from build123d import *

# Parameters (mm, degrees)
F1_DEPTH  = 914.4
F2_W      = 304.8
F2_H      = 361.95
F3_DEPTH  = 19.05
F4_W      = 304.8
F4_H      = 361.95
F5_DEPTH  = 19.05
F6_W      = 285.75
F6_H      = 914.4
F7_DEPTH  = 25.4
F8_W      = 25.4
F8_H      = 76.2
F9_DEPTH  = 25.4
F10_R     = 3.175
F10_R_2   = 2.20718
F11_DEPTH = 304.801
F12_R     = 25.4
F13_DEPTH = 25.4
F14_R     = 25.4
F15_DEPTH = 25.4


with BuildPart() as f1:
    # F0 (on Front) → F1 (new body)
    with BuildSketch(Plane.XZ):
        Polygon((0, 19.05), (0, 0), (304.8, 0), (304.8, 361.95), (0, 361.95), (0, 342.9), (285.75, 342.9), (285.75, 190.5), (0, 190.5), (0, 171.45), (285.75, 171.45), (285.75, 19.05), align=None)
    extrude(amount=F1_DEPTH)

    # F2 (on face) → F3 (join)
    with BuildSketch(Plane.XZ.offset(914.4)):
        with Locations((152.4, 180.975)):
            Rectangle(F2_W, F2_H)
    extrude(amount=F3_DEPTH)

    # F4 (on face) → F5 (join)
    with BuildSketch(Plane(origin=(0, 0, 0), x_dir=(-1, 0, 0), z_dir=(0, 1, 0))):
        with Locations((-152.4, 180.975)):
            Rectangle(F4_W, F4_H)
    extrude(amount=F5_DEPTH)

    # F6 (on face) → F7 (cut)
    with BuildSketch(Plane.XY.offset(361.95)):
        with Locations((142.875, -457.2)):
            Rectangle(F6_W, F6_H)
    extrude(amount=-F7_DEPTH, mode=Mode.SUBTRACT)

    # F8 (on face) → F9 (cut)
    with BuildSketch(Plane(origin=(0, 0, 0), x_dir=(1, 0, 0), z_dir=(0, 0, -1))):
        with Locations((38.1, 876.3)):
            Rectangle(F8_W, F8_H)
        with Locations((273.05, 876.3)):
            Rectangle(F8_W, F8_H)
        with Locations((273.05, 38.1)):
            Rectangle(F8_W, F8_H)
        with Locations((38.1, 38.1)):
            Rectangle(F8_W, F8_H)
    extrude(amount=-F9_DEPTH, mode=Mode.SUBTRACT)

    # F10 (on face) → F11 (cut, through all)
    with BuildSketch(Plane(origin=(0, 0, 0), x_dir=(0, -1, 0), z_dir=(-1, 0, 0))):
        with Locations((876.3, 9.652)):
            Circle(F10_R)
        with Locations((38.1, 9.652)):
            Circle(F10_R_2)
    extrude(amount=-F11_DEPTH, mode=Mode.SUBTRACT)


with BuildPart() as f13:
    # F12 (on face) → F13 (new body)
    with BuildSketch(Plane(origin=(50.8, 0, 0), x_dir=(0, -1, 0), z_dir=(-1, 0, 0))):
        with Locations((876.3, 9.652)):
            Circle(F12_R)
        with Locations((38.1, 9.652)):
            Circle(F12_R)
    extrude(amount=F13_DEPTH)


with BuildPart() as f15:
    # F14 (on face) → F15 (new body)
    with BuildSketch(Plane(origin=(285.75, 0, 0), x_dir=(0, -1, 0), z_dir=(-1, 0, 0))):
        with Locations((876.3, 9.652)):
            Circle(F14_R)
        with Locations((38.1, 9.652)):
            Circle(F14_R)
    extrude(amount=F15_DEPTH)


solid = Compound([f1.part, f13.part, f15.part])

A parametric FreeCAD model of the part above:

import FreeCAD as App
import Part
import Sketcher
from FreeCAD import Vector
Q = App.Units.Quantity

doc = App.newDocument("Part")
body = doc.addObject("PartDesign::Body", "Body")

sketch1 = body.newObject("Sketcher::SketchObject", "Sketch")
sketch1.AttachmentSupport = (doc.getObject("XZ_Plane"), [""])
sketch1.MapMode = "FlatFace"
sketch1.addGeometry(Part.LineSegment(Vector(0, 19, 0), Vector(0, 0, 0)), False)
sketch1.addGeometry(Part.LineSegment(Vector(0, 0, 0), Vector(305, 0, 0)), False)
sketch1.addGeometry(Part.LineSegment(Vector(305, 0, 0), Vector(305, 362, 0)), False)
sketch1.addGeometry(Part.LineSegment(Vector(305, 362, 0), Vector(0, 362, 0)), False)
sketch1.addGeometry(Part.LineSegment(Vector(0, 362, 0), Vector(0, 343, 0)), False)
sketch1.addGeometry(Part.LineSegment(Vector(0, 343, 0), Vector(286, 343, 0)), False)
sketch1.addGeometry(Part.LineSegment(Vector(286, 343, 0), Vector(286, 190, 0)), False)
sketch1.addGeometry(Part.LineSegment(Vector(286, 190, 0), Vector(0, 190, 0)), False)
sketch1.addGeometry(Part.LineSegment(Vector(0, 190, 0), Vector(0, 171, 0)), False)
sketch1.addGeometry(Part.LineSegment(Vector(0, 171, 0), Vector(286, 171, 0)), False)
sketch1.addGeometry(Part.LineSegment(Vector(286, 171, 0), Vector(286, 19, 0)), False)
sketch1.addGeometry(Part.LineSegment(Vector(286, 19, 0), Vector(0, 19, 0)), False)
sketch1.addConstraint(Sketcher.Constraint("Coincident", 0, 2, 1, 1))
sketch1.addConstraint(Sketcher.Constraint("Coincident", 1, 2, 2, 1))
sketch1.addConstraint(Sketcher.Constraint("Coincident", 2, 2, 3, 1))
sketch1.addConstraint(Sketcher.Constraint("Coincident", 3, 2, 4, 1))
sketch1.addConstraint(Sketcher.Constraint("Coincident", 4, 2, 5, 1))
sketch1.addConstraint(Sketcher.Constraint("Coincident", 5, 2, 6, 1))
sketch1.addConstraint(Sketcher.Constraint("Coincident", 6, 2, 7, 1))
sketch1.addConstraint(Sketcher.Constraint("Coincident", 7, 2, 8, 1))
sketch1.addConstraint(Sketcher.Constraint("Coincident", 8, 2, 9, 1))
sketch1.addConstraint(Sketcher.Constraint("Coincident", 9, 2, 10, 1))
sketch1.addConstraint(Sketcher.Constraint("Coincident", 10, 2, 11, 1))
sketch1.addConstraint(Sketcher.Constraint("Coincident", 11, 2, 0, 1))
sketch1.addConstraint(Sketcher.Constraint("Vertical", 0))
sketch1.addConstraint(Sketcher.Constraint("Horizontal", 1))
sketch1.addConstraint(Sketcher.Constraint("Vertical", 2))
sketch1.addConstraint(Sketcher.Constraint("Horizontal", 3))
sketch1.addConstraint(Sketcher.Constraint("Vertical", 4))
sketch1.addConstraint(Sketcher.Constraint("Horizontal", 5))
sketch1.addConstraint(Sketcher.Constraint("Vertical", 6))
sketch1.addConstraint(Sketcher.Constraint("Horizontal", 7))
sketch1.addConstraint(Sketcher.Constraint("Vertical", 8))
sketch1.addConstraint(Sketcher.Constraint("Horizontal", 9))
sketch1.addConstraint(Sketcher.Constraint("Vertical", 10))
sketch1.addConstraint(Sketcher.Constraint("Horizontal", 11))
sketch1.addConstraint(Sketcher.Constraint("Coincident", 0, 2, -1, 1))
sketch1.addConstraint(Sketcher.Constraint("PointOnObject", 3, 2, -2))
sketch1.addConstraint(Sketcher.Constraint("PointOnObject", 7, 2, -2))
sketch1.addConstraint(Sketcher.Constraint("Vertical", 6, 2, 9, 2))
sketch1.addConstraint(Sketcher.Constraint("Equal", 0, 4))
sketch1.addConstraint(Sketcher.Constraint("Equal", 4, 8))
sketch1.addConstraint(Sketcher.Constraint("Equal", 6, 10))
sketch1.addConstraint(Sketcher.Constraint("DistanceX", 1, 1, 1, 2, Q("12 in")))
sketch1.addConstraint(Sketcher.Constraint("DistanceY", 6, 2, 6, 1, Q("6 in")))
sketch1.addConstraint(Sketcher.Constraint("DistanceX", 5, 1, 5, 2, Q("11.25 in")))
sketch1.addConstraint(Sketcher.Constraint("DistanceY", 0, 2, 0, 1, Q("0.75 in")))
pad1 = body.newObject("PartDesign::Pad", "Pad")
pad1.Profile = sketch1
pad1.Length = Q("36 in")

sketch2 = body.newObject("Sketcher::SketchObject", "Sketch001")
sketch2.AttachmentSupport = (doc.getObject("XZ_Plane"), [""])
sketch2.MapMode = "FlatFace"
sketch2.AttachmentOffset = App.Placement(Vector(0, 0, 36 * 25.4), App.Rotation())
sketch2.addGeometry(Part.LineSegment(Vector(0, 362, 0), Vector(0, 0, 0)), False)
sketch2.addGeometry(Part.LineSegment(Vector(0, 0, 0), Vector(305, 0, 0)), False)
sketch2.addGeometry(Part.LineSegment(Vector(305, 0, 0), Vector(305, 362, 0)), False)
sketch2.addGeometry(Part.LineSegment(Vector(305, 362, 0), Vector(0, 362, 0)), False)
sketch2.addConstraint(Sketcher.Constraint("Coincident", 0, 2, 1, 1))
sketch2.addConstraint(Sketcher.Constraint("Coincident", 1, 2, 2, 1))
sketch2.addConstraint(Sketcher.Constraint("Coincident", 2, 2, 3, 1))
sketch2.addConstraint(Sketcher.Constraint("Coincident", 3, 2, 0, 1))
sketch2.addConstraint(Sketcher.Constraint("Vertical", 0))
sketch2.addConstraint(Sketcher.Constraint("Horizontal", 1))
sketch2.addConstraint(Sketcher.Constraint("Vertical", 2))
sketch2.addConstraint(Sketcher.Constraint("Horizontal", 3))
sketch2.addConstraint(Sketcher.Constraint("Coincident", 0, 2, -1, 1))
sketch2.addConstraint(Sketcher.Constraint("DistanceX", 1, 1, 1, 2, Q("12 in")))
sketch2.addConstraint(Sketcher.Constraint("DistanceY", 0, 2, 0, 1, Q("14.25 in")))
pad2 = body.newObject("PartDesign::Pad", "Pad001")
pad2.Profile = sketch2
pad2.Length = Q("0.75 in")

sketch3 = body.newObject("Sketcher::SketchObject", "Sketch002")
sketch3.AttachmentSupport = (doc.getObject("XZ_Plane"), [""])
sketch3.MapMode = "FlatFace"
sketch3.addGeometry(Part.LineSegment(Vector(305, 362, 0), Vector(305, 0, 0)), False)
sketch3.addGeometry(Part.LineSegment(Vector(305, 0, 0), Vector(0, 0, 0)), False)
sketch3.addGeometry(Part.LineSegment(Vector(0, 0, 0), Vector(0, 362, 0)), False)
sketch3.addGeometry(Part.LineSegment(Vector(0, 362, 0), Vector(305, 362, 0)), False)
sketch3.addConstraint(Sketcher.Constraint("Coincident", 0, 2, 1, 1))
sketch3.addConstraint(Sketcher.Constraint("Coincident", 1, 2, 2, 1))
sketch3.addConstraint(Sketcher.Constraint("Coincident", 2, 2, 3, 1))
sketch3.addConstraint(Sketcher.Constraint("Coincident", 3, 2, 0, 1))
sketch3.addConstraint(Sketcher.Constraint("Vertical", 0))
sketch3.addConstraint(Sketcher.Constraint("Horizontal", 1))
sketch3.addConstraint(Sketcher.Constraint("Vertical", 2))
sketch3.addConstraint(Sketcher.Constraint("Horizontal", 3))
sketch3.addConstraint(Sketcher.Constraint("Coincident", 1, 2, -1, 1))
sketch3.addConstraint(Sketcher.Constraint("DistanceX", 1, 2, 1, 1, Q("12 in")))
sketch3.addConstraint(Sketcher.Constraint("DistanceY", 0, 2, 0, 1, Q("14.25 in")))
pad3 = body.newObject("PartDesign::Pad", "Pad002")
pad3.Profile = sketch3
pad3.Length = Q("0.75 in")
pad3.Reversed = True

sketch4 = body.newObject("Sketcher::SketchObject", "Sketch003")
sketch4.AttachmentSupport = (doc.getObject("XY_Plane"), [""])
sketch4.MapMode = "FlatFace"
sketch4.AttachmentOffset = App.Placement(Vector(0, 0, 14.25 * 25.4), App.Rotation())
sketch4.addGeometry(Part.LineSegment(Vector(0, 0, 0), Vector(0, -914, 0)), False)
sketch4.addGeometry(Part.LineSegment(Vector(0, -914, 0), Vector(286, -914, 0)), False)
sketch4.addGeometry(Part.LineSegment(Vector(286, -914, 0), Vector(286, 0, 0)), False)
sketch4.addGeometry(Part.LineSegment(Vector(286, 0, 0), Vector(0, 0, 0)), False)
sketch4.addConstraint(Sketcher.Constraint("Coincident", 0, 2, 1, 1))
sketch4.addConstraint(Sketcher.Constraint("Coincident", 1, 2, 2, 1))
sketch4.addConstraint(Sketcher.Constraint("Coincident", 2, 2, 3, 1))
sketch4.addConstraint(Sketcher.Constraint("Coincident", 3, 2, 0, 1))
sketch4.addConstraint(Sketcher.Constraint("Vertical", 0))
sketch4.addConstraint(Sketcher.Constraint("Horizontal", 1))
sketch4.addConstraint(Sketcher.Constraint("Vertical", 2))
sketch4.addConstraint(Sketcher.Constraint("Horizontal", 3))
sketch4.addConstraint(Sketcher.Constraint("Coincident", 3, 2, -1, 1))
sketch4.addConstraint(Sketcher.Constraint("DistanceY", 0, 2, 0, 1, Q("36 in")))
sketch4.addConstraint(Sketcher.Constraint("DistanceX", 1, 1, 1, 2, Q("11.25 in")))
pocket1 = body.newObject("PartDesign::Pocket", "Pocket")
pocket1.Profile = sketch4
pocket1.Length = Q("1 in")

sketch5 = body.newObject("Sketcher::SketchObject", "Sketch004")
sketch5.AttachmentSupport = (doc.getObject("XY_Plane"), [""])
sketch5.MapMode = "FlatFace"
sketch5.addGeometry(Part.LineSegment(Vector(25, -914, 0), Vector(25, -838, 0)), False)
sketch5.addGeometry(Part.LineSegment(Vector(25, -838, 0), Vector(51, -838, 0)), False)
sketch5.addGeometry(Part.LineSegment(Vector(51, -838, 0), Vector(51, -914, 0)), False)
sketch5.addGeometry(Part.LineSegment(Vector(51, -914, 0), Vector(25, -914, 0)), False)
sketch5.addGeometry(Part.LineSegment(Vector(260, -914, 0), Vector(260, -838, 0)), False)
sketch5.addGeometry(Part.LineSegment(Vector(260, -838, 0), Vector(286, -838, 0)), False)
sketch5.addGeometry(Part.LineSegment(Vector(286, -838, 0), Vector(286, -914, 0)), False)
sketch5.addGeometry(Part.LineSegment(Vector(286, -914, 0), Vector(260, -914, 0)), False)
sketch5.addGeometry(Part.LineSegment(Vector(260, -76, 0), Vector(260, 0, 0)), False)
sketch5.addGeometry(Part.LineSegment(Vector(260, 0, 0), Vector(286, 0, 0)), False)
sketch5.addGeometry(Part.LineSegment(Vector(286, 0, 0), Vector(286, -76, 0)), False)
sketch5.addGeometry(Part.LineSegment(Vector(286, -76, 0), Vector(260, -76, 0)), False)
sketch5.addGeometry(Part.LineSegment(Vector(25, -76, 0), Vector(25, 0, 0)), False)
sketch5.addGeometry(Part.LineSegment(Vector(25, 0, 0), Vector(51, 0, 0)), False)
sketch5.addGeometry(Part.LineSegment(Vector(51, 0, 0), Vector(51, -76, 0)), False)
sketch5.addGeometry(Part.LineSegment(Vector(51, -76, 0), Vector(25, -76, 0)), False)
sketch5.addConstraint(Sketcher.Constraint("Coincident", 0, 2, 1, 1))
sketch5.addConstraint(Sketcher.Constraint("Coincident", 1, 2, 2, 1))
sketch5.addConstraint(Sketcher.Constraint("Coincident", 2, 2, 3, 1))
sketch5.addConstraint(Sketcher.Constraint("Coincident", 3, 2, 0, 1))
sketch5.addConstraint(Sketcher.Constraint("Coincident", 4, 2, 5, 1))
sketch5.addConstraint(Sketcher.Constraint("Coincident", 5, 2, 6, 1))
sketch5.addConstraint(Sketcher.Constraint("Coincident", 6, 2, 7, 1))
sketch5.addConstraint(Sketcher.Constraint("Coincident", 7, 2, 4, 1))
sketch5.addConstraint(Sketcher.Constraint("Coincident", 8, 2, 9, 1))
sketch5.addConstraint(Sketcher.Constraint("Coincident", 9, 2, 10, 1))
sketch5.addConstraint(Sketcher.Constraint("Coincident", 10, 2, 11, 1))
sketch5.addConstraint(Sketcher.Constraint("Coincident", 11, 2, 8, 1))
sketch5.addConstraint(Sketcher.Constraint("Coincident", 12, 2, 13, 1))
sketch5.addConstraint(Sketcher.Constraint("Coincident", 13, 2, 14, 1))
sketch5.addConstraint(Sketcher.Constraint("Coincident", 14, 2, 15, 1))
sketch5.addConstraint(Sketcher.Constraint("Coincident", 15, 2, 12, 1))
sketch5.addConstraint(Sketcher.Constraint("Vertical", 0))
sketch5.addConstraint(Sketcher.Constraint("Horizontal", 1))
sketch5.addConstraint(Sketcher.Constraint("Vertical", 2))
sketch5.addConstraint(Sketcher.Constraint("Horizontal", 3))
sketch5.addConstraint(Sketcher.Constraint("Vertical", 4))
sketch5.addConstraint(Sketcher.Constraint("Horizontal", 5))
sketch5.addConstraint(Sketcher.Constraint("Vertical", 6))
sketch5.addConstraint(Sketcher.Constraint("Horizontal", 7))
sketch5.addConstraint(Sketcher.Constraint("Vertical", 8))
sketch5.addConstraint(Sketcher.Constraint("Horizontal", 9))
sketch5.addConstraint(Sketcher.Constraint("Vertical", 10))
sketch5.addConstraint(Sketcher.Constraint("Horizontal", 11))
sketch5.addConstraint(Sketcher.Constraint("Vertical", 12))
sketch5.addConstraint(Sketcher.Constraint("Horizontal", 13))
sketch5.addConstraint(Sketcher.Constraint("Vertical", 14))
sketch5.addConstraint(Sketcher.Constraint("Horizontal", 15))
sketch5.addConstraint(Sketcher.Constraint("PointOnObject", 8, 2, -1))
sketch5.addConstraint(Sketcher.Constraint("PointOnObject", 12, 2, -1))
sketch5.addConstraint(Sketcher.Constraint("Horizontal", 1, 2, 4, 2))
sketch5.addConstraint(Sketcher.Constraint("Horizontal", 3, 2, 6, 2))
sketch5.addConstraint(Sketcher.Constraint("Horizontal", 11, 2, 14, 2))
sketch5.addConstraint(Sketcher.Constraint("Vertical", 7, 2, 8, 2))
sketch5.addConstraint(Sketcher.Constraint("Vertical", 6, 2, 9, 2))
sketch5.addConstraint(Sketcher.Constraint("Vertical", 3, 2, 12, 2))
sketch5.addConstraint(Sketcher.Constraint("Vertical", 2, 2, 13, 2))
sketch5.addConstraint(Sketcher.Constraint("Equal", 3, 5))
sketch5.addConstraint(Sketcher.Constraint("Equal", 6, 8))
sketch5.addConstraint(Sketcher.Constraint("DistanceX", 1, 1, 1, 2, Q("1 in")))
sketch5.addConstraint(Sketcher.Constraint("DistanceY", 0, 1, 0, 2, Q("3 in")))
sketch5.addConstraint(Sketcher.Constraint("DistanceX", -1, 1, 0, 2, Q("1 in")))
sketch5.addConstraint(Sketcher.Constraint("DistanceY", 0, 2, -1, 1, Q("33 in")))
sketch5.addConstraint(Sketcher.Constraint("DistanceX", -1, 1, 4, 2, Q("10.25 in")))
pocket2 = body.newObject("PartDesign::Pocket", "Pocket001")
pocket2.Profile = sketch5
pocket2.Length = Q("1 in")
pocket2.Reversed = True

sketch6 = body.newObject("Sketcher::SketchObject", "Sketch005")
sketch6.AttachmentSupport = (doc.getObject("YZ_Plane"), [""])
sketch6.MapMode = "FlatFace"
sketch6.addGeometry(Part.Circle(Vector(-876.3, 9.7, 0), Vector(0, 0, 1), 3.2), False)
sketch6.addGeometry(Part.Circle(Vector(-38.1, 9.7, 0), Vector(0, 0, 1), 2.2), False)
sketch6.addConstraint(Sketcher.Constraint("Horizontal", 0, 3, 1, 3))
sketch6.addConstraint(Sketcher.Constraint("Diameter", 0, Q("0.25 in")))
sketch6.addConstraint(Sketcher.Constraint("DistanceX", 0, 3, 1, 3, Q("33 in")))
sketch6.addConstraint(Sketcher.Constraint("DistanceX", 0, 3, -1, 1, Q("34.5 in")))
sketch6.addConstraint(Sketcher.Constraint("DistanceY", -1, 1, 0, 3, Q("0.38 in")))
sketch6.addConstraint(Sketcher.Constraint("Diameter", 1, 4.41436))
pocket3 = body.newObject("PartDesign::Pocket", "Pocket002")
pocket3.Profile = sketch6
pocket3.Type = "ThroughAll"
pocket3.Reversed = True
body2 = doc.addObject("PartDesign::Body", "Body001")
body2.AllowCompound = True

sketch7 = body2.newObject("Sketcher::SketchObject", "Sketch006")
sketch7.AttachmentSupport = (doc.getObject("YZ_Plane001"), [""])
sketch7.MapMode = "FlatFace"
sketch7.AttachmentOffset = App.Placement(Vector(0, 0, 2 * 25.4), App.Rotation())
sketch7.addGeometry(Part.Circle(Vector(-876, 10, 0), Vector(0, 0, 1), 25), False)
sketch7.addGeometry(Part.Circle(Vector(-38, 10, 0), Vector(0, 0, 1), 25), False)
sketch7.addConstraint(Sketcher.Constraint("Equal", 0, 1))
sketch7.addConstraint(Sketcher.Constraint("Horizontal", 0, 3, 1, 3))
sketch7.addConstraint(Sketcher.Constraint("Diameter", 0, Q("2 in")))
sketch7.addConstraint(Sketcher.Constraint("DistanceX", 0, 3, 1, 3, Q("33 in")))
sketch7.addConstraint(Sketcher.Constraint("DistanceX", 0, 3, -1, 1, Q("34.5 in")))
sketch7.addConstraint(Sketcher.Constraint("DistanceY", -1, 1, 0, 3, Q("0.38 in")))
pad4 = body2.newObject("PartDesign::Pad", "Pad003")
pad4.Profile = sketch7
pad4.Length = Q("1 in")
pad4.Reversed = True
body3 = doc.addObject("PartDesign::Body", "Body002")
body3.AllowCompound = True

sketch8 = body3.newObject("Sketcher::SketchObject", "Sketch007")
sketch8.AttachmentSupport = (doc.getObject("YZ_Plane002"), [""])
sketch8.MapMode = "FlatFace"
sketch8.AttachmentOffset = App.Placement(Vector(0, 0, 11.25 * 25.4), App.Rotation())
sketch8.addGeometry(Part.Circle(Vector(-876, 10, 0), Vector(0, 0, 1), 25), False)
sketch8.addGeometry(Part.Circle(Vector(-38, 10, 0), Vector(0, 0, 1), 25), False)
sketch8.addConstraint(Sketcher.Constraint("Equal", 0, 1))
sketch8.addConstraint(Sketcher.Constraint("Horizontal", 0, 3, 1, 3))
sketch8.addConstraint(Sketcher.Constraint("Diameter", 0, Q("2 in")))
sketch8.addConstraint(Sketcher.Constraint("DistanceX", 0, 3, 1, 3, Q("33 in")))
sketch8.addConstraint(Sketcher.Constraint("DistanceX", 0, 3, -1, 1, Q("34.5 in")))
sketch8.addConstraint(Sketcher.Constraint("DistanceY", -1, 1, 0, 3, Q("0.38 in")))
pad5 = body3.newObject("PartDesign::Pad", "Pad004")
pad5.Profile = sketch8
pad5.Length = Q("1 in")
pad5.Reversed = True

doc.recompute()
